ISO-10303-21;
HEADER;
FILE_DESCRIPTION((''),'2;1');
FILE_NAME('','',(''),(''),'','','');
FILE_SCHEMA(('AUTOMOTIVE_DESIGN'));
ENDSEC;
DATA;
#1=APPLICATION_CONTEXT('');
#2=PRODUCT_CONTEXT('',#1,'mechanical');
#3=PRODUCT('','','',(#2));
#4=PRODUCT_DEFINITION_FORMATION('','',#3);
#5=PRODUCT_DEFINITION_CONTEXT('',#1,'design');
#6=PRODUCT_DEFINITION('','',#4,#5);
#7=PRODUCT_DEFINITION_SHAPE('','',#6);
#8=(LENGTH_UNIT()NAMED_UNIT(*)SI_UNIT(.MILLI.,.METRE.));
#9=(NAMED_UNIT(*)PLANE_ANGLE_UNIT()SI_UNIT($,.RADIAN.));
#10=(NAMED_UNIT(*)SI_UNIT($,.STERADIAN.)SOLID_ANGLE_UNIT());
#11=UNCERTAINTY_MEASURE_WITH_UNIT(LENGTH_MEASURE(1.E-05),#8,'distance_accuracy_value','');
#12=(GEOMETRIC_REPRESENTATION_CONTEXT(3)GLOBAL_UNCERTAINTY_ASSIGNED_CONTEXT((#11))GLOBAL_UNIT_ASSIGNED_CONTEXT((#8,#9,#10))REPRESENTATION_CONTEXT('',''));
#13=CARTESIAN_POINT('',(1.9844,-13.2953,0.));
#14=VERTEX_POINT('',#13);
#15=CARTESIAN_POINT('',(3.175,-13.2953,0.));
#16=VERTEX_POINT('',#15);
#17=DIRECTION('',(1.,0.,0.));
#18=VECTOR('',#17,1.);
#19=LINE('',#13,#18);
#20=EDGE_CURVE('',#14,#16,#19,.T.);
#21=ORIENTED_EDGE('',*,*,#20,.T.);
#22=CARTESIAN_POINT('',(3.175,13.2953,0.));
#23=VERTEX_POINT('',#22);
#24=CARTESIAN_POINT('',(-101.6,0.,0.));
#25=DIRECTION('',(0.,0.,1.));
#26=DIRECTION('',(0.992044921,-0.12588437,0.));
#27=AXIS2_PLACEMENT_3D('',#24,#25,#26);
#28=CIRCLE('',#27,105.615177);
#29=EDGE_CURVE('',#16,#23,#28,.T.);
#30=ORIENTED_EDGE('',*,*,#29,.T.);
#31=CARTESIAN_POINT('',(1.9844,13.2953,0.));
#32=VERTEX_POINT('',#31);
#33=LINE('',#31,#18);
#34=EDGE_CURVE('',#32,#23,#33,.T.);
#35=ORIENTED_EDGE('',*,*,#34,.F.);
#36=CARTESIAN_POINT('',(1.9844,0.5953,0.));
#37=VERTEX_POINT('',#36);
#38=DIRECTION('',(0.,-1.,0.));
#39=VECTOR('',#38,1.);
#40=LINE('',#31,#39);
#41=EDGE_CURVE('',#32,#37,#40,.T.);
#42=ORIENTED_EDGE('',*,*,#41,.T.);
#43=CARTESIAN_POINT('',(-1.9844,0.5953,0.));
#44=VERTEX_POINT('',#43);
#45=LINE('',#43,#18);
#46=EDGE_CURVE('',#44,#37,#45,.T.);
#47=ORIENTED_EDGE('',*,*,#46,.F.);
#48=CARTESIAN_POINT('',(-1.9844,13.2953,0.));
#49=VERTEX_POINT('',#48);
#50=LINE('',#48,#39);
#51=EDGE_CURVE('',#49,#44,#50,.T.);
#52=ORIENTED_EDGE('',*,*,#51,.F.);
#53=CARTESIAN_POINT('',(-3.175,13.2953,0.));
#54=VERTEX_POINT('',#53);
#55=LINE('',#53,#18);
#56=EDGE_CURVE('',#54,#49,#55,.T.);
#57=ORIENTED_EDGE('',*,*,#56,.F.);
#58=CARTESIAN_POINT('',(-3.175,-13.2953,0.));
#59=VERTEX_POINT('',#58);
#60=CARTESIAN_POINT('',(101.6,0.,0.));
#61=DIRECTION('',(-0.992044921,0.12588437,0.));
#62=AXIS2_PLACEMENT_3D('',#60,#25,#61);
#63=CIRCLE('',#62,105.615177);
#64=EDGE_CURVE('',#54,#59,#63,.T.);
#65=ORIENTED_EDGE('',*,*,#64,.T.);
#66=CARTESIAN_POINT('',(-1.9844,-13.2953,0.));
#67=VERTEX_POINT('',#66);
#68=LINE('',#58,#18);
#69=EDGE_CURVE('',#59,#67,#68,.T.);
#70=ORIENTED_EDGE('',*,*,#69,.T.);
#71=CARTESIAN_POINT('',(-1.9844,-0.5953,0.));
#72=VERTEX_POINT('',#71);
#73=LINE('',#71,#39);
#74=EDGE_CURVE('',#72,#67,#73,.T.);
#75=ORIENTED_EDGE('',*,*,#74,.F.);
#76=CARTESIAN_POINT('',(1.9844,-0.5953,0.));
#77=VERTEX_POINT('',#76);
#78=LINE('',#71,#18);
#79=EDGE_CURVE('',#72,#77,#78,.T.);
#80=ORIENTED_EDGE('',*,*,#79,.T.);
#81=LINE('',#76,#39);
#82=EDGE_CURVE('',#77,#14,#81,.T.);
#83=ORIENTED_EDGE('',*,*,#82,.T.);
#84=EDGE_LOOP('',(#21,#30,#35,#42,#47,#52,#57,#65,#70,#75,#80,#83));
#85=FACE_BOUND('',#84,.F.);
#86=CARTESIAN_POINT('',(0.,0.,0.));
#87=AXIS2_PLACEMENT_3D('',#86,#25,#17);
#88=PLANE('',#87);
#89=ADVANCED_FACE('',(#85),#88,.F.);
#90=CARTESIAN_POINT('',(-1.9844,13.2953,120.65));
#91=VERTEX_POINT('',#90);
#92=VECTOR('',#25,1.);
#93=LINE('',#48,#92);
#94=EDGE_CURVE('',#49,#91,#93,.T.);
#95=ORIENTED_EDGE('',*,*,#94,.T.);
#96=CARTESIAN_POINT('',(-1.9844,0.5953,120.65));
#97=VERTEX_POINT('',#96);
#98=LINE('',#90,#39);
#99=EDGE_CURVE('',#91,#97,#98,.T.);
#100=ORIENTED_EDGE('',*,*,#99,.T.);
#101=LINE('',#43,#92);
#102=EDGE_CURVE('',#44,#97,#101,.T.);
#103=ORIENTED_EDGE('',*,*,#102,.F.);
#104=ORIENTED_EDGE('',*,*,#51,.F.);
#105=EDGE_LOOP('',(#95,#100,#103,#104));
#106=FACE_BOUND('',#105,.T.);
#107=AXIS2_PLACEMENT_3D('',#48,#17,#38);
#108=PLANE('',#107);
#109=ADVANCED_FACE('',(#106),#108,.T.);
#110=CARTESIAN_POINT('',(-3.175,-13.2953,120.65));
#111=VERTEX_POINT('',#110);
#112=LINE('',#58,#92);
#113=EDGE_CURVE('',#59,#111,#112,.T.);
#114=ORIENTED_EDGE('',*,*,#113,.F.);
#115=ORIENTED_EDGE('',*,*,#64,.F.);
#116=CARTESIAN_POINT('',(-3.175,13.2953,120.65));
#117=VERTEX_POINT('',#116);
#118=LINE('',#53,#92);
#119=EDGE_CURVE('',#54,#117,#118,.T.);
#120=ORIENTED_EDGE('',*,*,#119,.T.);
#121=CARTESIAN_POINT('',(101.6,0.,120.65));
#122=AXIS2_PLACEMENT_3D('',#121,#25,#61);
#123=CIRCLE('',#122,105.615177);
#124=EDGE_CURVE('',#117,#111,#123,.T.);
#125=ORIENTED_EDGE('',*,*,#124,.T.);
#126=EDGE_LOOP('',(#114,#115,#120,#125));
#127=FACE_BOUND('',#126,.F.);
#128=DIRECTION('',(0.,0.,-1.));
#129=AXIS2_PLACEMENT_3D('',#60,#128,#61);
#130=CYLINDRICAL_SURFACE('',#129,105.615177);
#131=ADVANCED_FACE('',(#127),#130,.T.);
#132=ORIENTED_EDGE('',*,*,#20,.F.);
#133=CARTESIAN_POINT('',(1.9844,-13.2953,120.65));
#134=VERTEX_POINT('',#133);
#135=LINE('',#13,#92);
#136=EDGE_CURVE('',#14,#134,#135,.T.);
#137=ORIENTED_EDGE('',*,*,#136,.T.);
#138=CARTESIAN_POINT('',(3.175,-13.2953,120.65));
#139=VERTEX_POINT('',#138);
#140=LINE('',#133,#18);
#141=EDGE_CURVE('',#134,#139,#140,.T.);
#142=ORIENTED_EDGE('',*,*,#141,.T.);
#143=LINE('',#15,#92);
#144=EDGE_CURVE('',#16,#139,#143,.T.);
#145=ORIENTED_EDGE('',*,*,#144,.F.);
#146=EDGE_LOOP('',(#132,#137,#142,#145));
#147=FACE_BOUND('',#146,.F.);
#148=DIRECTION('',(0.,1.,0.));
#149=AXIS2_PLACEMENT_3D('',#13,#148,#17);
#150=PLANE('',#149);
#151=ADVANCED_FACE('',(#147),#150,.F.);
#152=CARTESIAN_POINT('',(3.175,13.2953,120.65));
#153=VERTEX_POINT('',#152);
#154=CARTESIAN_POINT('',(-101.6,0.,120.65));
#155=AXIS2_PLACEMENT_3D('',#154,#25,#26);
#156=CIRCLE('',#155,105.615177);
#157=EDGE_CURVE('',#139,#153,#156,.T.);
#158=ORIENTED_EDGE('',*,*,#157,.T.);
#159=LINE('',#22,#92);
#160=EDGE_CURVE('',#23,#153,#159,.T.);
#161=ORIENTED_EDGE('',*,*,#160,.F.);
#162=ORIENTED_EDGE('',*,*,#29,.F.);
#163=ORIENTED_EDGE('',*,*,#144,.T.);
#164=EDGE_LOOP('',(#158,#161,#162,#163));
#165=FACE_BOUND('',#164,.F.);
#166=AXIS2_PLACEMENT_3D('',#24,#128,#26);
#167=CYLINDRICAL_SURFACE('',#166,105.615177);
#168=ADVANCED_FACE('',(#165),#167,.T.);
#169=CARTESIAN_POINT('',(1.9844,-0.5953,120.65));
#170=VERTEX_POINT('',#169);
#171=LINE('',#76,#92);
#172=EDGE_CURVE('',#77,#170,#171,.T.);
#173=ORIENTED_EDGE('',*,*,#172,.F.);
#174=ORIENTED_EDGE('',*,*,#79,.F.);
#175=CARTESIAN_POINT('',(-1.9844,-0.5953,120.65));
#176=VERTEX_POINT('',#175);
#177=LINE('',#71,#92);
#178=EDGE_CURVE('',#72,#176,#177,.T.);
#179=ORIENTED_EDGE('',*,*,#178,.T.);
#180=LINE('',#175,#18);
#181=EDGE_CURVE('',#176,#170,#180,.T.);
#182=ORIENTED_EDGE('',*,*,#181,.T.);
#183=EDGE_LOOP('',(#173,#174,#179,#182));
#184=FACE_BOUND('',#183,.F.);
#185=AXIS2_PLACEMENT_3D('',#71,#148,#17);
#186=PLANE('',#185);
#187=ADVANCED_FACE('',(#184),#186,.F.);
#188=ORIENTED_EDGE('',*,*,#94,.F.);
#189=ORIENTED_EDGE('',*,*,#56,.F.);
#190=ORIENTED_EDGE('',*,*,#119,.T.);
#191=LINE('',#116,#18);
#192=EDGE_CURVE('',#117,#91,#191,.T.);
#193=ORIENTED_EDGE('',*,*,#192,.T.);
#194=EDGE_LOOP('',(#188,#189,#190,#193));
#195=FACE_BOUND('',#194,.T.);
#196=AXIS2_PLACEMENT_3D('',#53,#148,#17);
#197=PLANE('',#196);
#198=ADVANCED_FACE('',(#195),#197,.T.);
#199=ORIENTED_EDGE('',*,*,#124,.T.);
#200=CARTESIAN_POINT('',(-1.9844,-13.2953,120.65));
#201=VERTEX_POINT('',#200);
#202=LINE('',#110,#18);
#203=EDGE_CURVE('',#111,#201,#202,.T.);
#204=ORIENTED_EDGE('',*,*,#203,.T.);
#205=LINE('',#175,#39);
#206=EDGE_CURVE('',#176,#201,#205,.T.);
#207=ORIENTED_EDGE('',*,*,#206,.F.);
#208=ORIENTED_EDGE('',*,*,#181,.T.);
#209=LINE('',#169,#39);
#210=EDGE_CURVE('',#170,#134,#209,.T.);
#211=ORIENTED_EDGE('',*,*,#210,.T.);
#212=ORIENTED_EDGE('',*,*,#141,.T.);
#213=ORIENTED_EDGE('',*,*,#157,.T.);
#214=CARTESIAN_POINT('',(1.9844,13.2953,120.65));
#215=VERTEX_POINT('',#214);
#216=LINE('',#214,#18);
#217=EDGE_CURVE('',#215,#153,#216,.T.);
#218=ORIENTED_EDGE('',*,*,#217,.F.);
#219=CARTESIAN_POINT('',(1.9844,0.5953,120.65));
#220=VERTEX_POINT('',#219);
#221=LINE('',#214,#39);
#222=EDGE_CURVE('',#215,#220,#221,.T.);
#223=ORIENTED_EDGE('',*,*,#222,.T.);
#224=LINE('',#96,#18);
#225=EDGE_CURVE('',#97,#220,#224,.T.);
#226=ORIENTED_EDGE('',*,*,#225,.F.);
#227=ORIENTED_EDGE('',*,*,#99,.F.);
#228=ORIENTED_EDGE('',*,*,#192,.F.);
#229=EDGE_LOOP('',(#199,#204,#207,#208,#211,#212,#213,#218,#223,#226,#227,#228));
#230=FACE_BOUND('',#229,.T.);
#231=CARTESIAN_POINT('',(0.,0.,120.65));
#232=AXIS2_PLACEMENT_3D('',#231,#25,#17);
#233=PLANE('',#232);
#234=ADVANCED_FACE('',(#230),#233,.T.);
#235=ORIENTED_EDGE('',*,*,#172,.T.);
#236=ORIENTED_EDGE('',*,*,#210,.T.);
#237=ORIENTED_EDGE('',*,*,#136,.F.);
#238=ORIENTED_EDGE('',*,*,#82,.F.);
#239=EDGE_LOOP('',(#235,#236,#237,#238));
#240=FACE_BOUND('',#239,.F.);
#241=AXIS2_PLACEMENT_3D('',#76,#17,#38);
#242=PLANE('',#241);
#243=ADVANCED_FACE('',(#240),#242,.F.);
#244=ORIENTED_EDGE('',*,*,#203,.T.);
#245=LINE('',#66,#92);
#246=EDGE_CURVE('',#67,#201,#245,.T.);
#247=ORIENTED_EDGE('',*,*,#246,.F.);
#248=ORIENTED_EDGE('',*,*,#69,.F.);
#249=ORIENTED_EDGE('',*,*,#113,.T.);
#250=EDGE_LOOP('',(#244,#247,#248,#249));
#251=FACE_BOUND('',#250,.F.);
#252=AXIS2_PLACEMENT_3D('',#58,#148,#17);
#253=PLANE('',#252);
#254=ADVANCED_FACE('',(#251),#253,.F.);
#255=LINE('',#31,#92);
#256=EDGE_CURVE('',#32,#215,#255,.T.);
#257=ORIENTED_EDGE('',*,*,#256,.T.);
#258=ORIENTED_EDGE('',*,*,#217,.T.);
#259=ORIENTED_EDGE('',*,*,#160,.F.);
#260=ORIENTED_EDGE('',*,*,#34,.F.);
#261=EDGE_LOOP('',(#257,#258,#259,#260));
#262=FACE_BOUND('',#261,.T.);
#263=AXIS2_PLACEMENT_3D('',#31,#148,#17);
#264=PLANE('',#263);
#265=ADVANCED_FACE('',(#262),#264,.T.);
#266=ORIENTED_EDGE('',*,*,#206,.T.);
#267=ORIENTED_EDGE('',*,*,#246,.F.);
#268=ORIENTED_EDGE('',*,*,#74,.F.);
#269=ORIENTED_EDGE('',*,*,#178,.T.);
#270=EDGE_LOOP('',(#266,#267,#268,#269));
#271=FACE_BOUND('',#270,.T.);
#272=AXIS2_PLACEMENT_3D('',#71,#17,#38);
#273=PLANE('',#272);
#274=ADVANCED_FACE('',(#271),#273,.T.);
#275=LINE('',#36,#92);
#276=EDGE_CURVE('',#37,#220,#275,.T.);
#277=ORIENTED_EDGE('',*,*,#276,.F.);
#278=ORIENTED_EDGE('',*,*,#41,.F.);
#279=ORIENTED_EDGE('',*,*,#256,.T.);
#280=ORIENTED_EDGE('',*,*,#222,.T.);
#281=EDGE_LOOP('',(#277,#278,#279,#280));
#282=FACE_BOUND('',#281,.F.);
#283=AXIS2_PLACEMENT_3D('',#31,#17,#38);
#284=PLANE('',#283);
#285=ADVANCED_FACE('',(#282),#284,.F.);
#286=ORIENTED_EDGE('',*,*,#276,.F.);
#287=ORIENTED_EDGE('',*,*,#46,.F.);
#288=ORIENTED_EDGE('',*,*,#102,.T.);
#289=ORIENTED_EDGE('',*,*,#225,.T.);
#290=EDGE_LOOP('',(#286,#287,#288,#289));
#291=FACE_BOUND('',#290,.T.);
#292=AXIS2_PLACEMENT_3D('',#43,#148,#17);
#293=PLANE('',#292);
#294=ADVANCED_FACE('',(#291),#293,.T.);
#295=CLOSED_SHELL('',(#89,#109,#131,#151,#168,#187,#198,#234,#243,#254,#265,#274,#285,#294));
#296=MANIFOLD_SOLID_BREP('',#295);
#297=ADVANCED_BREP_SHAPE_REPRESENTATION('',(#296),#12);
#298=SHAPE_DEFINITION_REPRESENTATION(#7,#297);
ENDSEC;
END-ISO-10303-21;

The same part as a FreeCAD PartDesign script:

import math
import FreeCAD as App
import Part
import Sketcher

V = App.Vector
Q = App.Units.Quantity

doc = App.newDocument("Part")
body = doc.addObject("PartDesign::Body", "Body")

# Sketch on XY plane
sketch1 = body.newObject("Sketcher::SketchObject", "Sketch")
sketch1.AttachmentSupport = (doc.getObject("XY_Plane"), [""])
sketch1.MapMode = "FlatFace"
sketch1.addGeometry(Part.LineSegment(V(-2, 13.3, 0), V(-3.2, 13.3, 0)), False)
sketch1.addGeometry(Part.ArcOfCircle(Part.Circle(V(101.6, 0, 0), V(0, 0, 1), 105.6), math.radians(172.77), math.radians(187.23)), False)
sketch1.addGeometry(Part.LineSegment(V(-3.2, -13.3, 0), V(-2, -13.3, 0)), False)
sketch1.addGeometry(Part.LineSegment(V(-2, -13.3, 0), V(-2, -0.6, 0)), False)
sketch1.addGeometry(Part.LineSegment(V(-2, -0.6, 0), V(2, -0.6, 0)), False)
sketch1.addGeometry(Part.LineSegment(V(2, -0.6, 0), V(2, -13.3, 0)), False)
sketch1.addGeometry(Part.LineSegment(V(2, -13.3, 0), V(3.2, -13.3, 0)), False)
sketch1.addGeometry(Part.ArcOfCircle(Part.Circle(V(-101.6, 0, 0), V(0, 0, 1), 105.6), math.radians(-7.23), math.radians(7.23)), False)
sketch1.addGeometry(Part.LineSegment(V(3.2, 13.3, 0), V(2, 13.3, 0)), False)
sketch1.addGeometry(Part.LineSegment(V(2, 13.3, 0), V(2, 0.6, 0)), False)
sketch1.addGeometry(Part.LineSegment(V(2, 0.6, 0), V(-2, 0.6, 0)), False)
sketch1.addGeometry(Part.LineSegment(V(-2, 0.6, 0), V(-2, 13.3, 0)), False)
sketch1.addConstraint(Sketcher.Constraint("Coincident", 0, 2, 1, 1))
sketch1.addConstraint(Sketcher.Constraint("Coincident", 1, 2, 2, 1))
sketch1.addConstraint(Sketcher.Constraint("Coincident", 2, 2, 3, 1))
sketch1.addConstraint(Sketcher.Constraint("Coincident", 3, 2, 4, 1))
sketch1.addConstraint(Sketcher.Constraint("Coincident", 4, 2, 5, 1))
sketch1.addConstraint(Sketcher.Constraint("Coincident", 5, 2, 6, 1))
sketch1.addConstraint(Sketcher.Constraint("Coincident", 6, 2, 7, 1))
sketch1.addConstraint(Sketcher.Constraint("Coincident", 7, 2, 8, 1))
sketch1.addConstraint(Sketcher.Constraint("Coincident", 8, 2, 9, 1))
sketch1.addConstraint(Sketcher.Constraint("Coincident", 9, 2, 10, 1))
sketch1.addConstraint(Sketcher.Constraint("Coincident", 10, 2, 11, 1))
sketch1.addConstraint(Sketcher.Constraint("Coincident", 11, 2, 0, 1))
sketch1.addConstraint(Sketcher.Constraint("Horizontal", 0))
sketch1.addConstraint(Sketcher.Constraint("Horizontal", 2))
sketch1.addConstraint(Sketcher.Constraint("Vertical", 3))
sketch1.addConstraint(Sketcher.Constraint("Horizontal", 4))
sketch1.addConstraint(Sketcher.Constraint("Vertical", 5))
sketch1.addConstraint(Sketcher.Constraint("Horizontal", 6))
sketch1.addConstraint(Sketcher.Constraint("Horizontal", 8))
sketch1.addConstraint(Sketcher.Constraint("Vertical", 9))
sketch1.addConstraint(Sketcher.Constraint("Horizontal", 10))
sketch1.addConstraint(Sketcher.Constraint("Vertical", 11))
sketch1.addConstraint(Sketcher.Constraint("Equal", 1, 7))
sketch1.addConstraint(Sketcher.Constraint("Symmetric", 1, 3, 7, 3, -1, 1))
sketch1.addConstraint(Sketcher.Constraint("Symmetric", 2, 2, 8, 2, -1, 1))
sketch1.addConstraint(Sketcher.Constraint("Symmetric", 4, 2, 10, 2, -1, 1))
sketch1.addConstraint(Sketcher.Constraint("Symmetric", 2, 2, 5, 2, -2))
sketch1.addConstraint(Sketcher.Constraint("Symmetric", 0, 2, 7, 2, -2))
sketch1.addConstraint(Sketcher.Constraint("DistanceX", -1, 1, 1, 3, Q("4 in")))
sketch1.addConstraint(Sketcher.Constraint("DistanceX", 0, 2, 0, 1, Q("0.046874 in")))
sketch1.addConstraint(Sketcher.Constraint("DistanceX", 4, 1, 4, 2, Q("0.156252 in")))
sketch1.addConstraint(Sketcher.Constraint("DistanceY", 3, 1, 3, 2, Q("0.5 in")))
sketch1.addConstraint(Sketcher.Constraint("DistanceY", 1, 2, 0, 2, Q("1.046874 in")))
pad1 = body.newObject("PartDesign::Pad", "Pad")
pad1.Profile = sketch1
pad1.Length = Q("4.75 in")

doc.recompute()
